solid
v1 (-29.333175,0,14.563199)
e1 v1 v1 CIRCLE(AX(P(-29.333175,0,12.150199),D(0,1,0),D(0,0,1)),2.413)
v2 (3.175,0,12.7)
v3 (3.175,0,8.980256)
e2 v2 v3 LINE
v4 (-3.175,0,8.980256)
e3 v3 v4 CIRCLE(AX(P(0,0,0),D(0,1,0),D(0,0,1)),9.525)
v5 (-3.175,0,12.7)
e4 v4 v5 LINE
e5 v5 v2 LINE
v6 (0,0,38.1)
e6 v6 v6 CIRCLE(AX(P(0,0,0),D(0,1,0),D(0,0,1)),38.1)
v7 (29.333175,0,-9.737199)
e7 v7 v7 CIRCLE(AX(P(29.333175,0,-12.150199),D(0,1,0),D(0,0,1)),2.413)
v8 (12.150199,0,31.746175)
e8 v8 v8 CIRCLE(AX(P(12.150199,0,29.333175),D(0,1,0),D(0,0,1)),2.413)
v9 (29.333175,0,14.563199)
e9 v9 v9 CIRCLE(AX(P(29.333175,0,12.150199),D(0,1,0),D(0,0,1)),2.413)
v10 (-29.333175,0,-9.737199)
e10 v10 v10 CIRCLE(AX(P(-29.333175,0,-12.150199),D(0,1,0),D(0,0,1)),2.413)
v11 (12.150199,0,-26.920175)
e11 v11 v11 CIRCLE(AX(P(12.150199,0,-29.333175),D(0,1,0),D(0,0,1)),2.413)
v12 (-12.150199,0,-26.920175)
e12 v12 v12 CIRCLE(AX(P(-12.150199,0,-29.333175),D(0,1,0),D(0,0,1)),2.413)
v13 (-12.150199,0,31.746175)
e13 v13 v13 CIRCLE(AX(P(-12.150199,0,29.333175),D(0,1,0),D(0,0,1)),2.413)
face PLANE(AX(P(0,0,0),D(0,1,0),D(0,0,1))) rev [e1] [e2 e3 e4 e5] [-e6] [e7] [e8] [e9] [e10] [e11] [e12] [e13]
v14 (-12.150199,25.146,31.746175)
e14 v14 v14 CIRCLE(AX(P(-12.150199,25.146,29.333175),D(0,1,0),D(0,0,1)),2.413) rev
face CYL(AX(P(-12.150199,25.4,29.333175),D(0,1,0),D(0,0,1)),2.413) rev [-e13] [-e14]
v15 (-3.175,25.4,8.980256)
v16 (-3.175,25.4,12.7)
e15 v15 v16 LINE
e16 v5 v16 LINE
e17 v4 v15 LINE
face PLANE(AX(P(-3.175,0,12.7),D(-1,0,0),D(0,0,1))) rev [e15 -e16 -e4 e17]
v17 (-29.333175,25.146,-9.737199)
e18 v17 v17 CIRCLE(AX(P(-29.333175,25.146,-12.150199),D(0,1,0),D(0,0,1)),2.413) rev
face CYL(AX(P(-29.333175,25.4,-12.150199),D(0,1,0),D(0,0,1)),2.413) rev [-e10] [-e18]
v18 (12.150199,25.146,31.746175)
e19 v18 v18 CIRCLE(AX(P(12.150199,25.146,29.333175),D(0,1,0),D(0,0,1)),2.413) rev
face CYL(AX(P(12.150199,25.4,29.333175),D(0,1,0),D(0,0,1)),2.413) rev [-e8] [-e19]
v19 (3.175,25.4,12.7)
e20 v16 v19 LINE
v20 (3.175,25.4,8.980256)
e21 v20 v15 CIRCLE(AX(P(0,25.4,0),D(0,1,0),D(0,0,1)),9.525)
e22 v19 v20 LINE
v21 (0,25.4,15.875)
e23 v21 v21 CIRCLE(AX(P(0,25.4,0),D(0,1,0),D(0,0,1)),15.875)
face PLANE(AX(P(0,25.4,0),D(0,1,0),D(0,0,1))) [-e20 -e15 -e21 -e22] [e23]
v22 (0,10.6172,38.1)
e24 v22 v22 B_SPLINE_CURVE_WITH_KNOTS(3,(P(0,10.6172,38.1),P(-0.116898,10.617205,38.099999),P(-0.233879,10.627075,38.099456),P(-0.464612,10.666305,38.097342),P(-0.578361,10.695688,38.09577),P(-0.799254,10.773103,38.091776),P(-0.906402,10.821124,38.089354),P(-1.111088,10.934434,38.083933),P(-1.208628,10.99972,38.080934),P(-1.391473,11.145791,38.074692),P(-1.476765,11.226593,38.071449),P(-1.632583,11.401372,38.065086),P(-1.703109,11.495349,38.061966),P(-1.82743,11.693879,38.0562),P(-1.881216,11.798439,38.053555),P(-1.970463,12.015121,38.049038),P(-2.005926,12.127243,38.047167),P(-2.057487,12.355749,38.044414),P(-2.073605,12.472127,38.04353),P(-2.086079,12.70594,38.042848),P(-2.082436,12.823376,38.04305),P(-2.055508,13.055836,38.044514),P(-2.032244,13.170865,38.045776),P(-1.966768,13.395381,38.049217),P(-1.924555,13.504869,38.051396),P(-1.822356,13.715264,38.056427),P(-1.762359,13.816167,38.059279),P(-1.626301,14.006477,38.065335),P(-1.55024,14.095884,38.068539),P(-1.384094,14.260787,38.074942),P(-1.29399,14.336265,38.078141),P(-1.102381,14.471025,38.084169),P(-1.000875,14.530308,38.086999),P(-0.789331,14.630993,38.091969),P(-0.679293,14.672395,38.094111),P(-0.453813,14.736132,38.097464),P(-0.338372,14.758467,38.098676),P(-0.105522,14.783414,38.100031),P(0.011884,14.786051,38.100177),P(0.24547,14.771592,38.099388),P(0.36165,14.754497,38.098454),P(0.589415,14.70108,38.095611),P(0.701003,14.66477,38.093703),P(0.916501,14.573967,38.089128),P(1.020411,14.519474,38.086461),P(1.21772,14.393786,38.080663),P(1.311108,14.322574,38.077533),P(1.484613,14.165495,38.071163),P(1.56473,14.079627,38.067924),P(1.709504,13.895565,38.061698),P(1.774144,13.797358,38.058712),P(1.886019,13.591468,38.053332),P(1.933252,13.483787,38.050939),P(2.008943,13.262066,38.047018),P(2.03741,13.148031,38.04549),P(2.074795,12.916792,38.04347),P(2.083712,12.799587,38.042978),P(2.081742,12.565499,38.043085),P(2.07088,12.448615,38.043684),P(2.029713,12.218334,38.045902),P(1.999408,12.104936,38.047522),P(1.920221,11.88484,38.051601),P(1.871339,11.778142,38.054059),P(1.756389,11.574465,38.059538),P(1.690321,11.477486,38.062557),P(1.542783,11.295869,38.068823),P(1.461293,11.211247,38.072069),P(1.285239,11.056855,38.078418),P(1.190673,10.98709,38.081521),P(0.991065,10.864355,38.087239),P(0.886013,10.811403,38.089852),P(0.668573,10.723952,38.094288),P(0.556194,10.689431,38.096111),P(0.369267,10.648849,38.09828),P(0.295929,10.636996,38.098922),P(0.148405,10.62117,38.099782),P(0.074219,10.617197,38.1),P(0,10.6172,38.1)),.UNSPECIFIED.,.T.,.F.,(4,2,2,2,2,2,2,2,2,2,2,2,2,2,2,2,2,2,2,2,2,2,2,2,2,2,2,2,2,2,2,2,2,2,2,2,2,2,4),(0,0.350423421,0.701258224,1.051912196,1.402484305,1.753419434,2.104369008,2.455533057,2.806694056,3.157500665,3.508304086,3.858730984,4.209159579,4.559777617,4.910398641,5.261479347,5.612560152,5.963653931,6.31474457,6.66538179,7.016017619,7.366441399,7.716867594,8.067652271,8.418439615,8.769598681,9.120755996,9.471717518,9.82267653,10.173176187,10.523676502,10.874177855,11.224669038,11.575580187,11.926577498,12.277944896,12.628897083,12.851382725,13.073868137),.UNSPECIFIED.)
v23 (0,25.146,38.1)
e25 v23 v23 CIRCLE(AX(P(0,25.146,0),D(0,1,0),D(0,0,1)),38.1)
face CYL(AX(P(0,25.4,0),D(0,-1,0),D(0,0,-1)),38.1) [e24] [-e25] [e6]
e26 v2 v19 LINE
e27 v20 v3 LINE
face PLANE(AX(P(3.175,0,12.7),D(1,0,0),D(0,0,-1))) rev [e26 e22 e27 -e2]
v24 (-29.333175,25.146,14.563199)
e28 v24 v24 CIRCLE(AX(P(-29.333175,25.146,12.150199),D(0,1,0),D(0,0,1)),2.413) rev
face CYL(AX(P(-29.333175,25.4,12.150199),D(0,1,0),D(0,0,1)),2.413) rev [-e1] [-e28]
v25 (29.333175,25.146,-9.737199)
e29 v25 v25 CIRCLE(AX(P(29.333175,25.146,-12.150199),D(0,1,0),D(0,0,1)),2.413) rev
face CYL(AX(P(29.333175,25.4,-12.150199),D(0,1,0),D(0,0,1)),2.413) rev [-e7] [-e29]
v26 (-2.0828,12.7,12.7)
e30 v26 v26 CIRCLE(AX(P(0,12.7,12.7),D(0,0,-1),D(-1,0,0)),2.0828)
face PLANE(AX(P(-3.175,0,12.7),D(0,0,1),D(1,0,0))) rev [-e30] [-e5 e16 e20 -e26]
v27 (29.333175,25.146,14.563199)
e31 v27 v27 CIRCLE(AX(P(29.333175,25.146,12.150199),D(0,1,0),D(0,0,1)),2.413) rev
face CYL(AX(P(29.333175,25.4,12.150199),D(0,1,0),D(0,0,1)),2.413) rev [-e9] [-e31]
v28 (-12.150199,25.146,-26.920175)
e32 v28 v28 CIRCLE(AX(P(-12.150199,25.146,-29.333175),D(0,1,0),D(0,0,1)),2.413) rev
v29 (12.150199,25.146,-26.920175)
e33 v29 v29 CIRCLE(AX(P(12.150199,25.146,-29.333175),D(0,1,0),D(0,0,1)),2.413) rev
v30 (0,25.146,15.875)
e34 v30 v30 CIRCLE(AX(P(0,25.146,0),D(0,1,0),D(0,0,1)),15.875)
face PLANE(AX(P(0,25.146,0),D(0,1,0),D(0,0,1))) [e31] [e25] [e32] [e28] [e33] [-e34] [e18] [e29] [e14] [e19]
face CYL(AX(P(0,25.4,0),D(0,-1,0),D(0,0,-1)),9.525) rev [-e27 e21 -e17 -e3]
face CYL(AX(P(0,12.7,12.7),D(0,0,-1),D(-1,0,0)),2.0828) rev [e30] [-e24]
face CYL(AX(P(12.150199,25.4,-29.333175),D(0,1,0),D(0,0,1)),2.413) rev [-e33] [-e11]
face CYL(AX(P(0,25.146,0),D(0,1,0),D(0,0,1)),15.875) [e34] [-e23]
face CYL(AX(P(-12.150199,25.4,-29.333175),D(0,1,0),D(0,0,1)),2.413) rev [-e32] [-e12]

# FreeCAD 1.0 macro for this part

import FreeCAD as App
import Part
import Sketcher
Q = App.Units.Quantity


def add_polygon(sketch, points):
    """Adds a closed chain of lines whose ends are joined by coincident constraints."""
    first, n = sketch.GeometryCount, len(points)
    for a, b in zip(points, points[1:] + points[:1]):
        sketch.addGeometry(Part.LineSegment(App.Vector(*a, 0), App.Vector(*b, 0)), False)
    for i in range(n):
        sketch.addConstraint(Sketcher.Constraint("Coincident", first + i, 2, first + (i + 1) % n, 1))

doc = App.newDocument("Part")
body = doc.addObject("PartDesign::Body", "Body")

sketch1 = body.newObject("Sketcher::SketchObject", "Sketch")
sketch1.AttachmentSupport = (doc.getObject("XZ_Plane"), [""])
sketch1.MapMode = "FlatFace"
sketch1.addGeometry([
    Part.Circle(App.Vector(0, 0, 0), App.Vector(0, 0, 1), 38),
    Part.Circle(App.Vector(0, 0, 0), App.Vector(0, 0, 1), 10),
], False)
sketch1.addConstraint([
    Sketcher.Constraint("Coincident", 0, 3, -1, 1),
    Sketcher.Constraint("Coincident", 1, 3, -1, 1),
    Sketcher.Constraint("Diameter", 0, Q("3 in")),
    Sketcher.Constraint("Diameter", 1, Q("0.75 in")),
])
pad1 = body.newObject("PartDesign::Pad", "Pad")
pad1.Profile = sketch1
pad1.Length = Q("1 in")
pad1.Reversed = True

sketch2 = body.newObject("Sketcher::SketchObject", "Sketch001")
sketch2.AttachmentSupport = (doc.getObject("XZ_Plane"), [""])
sketch2.MapMode = "FlatFace"
sketch2.AttachmentOffset = App.Placement(App.Vector(0, 0, -1 * 25.4), App.Rotation())
sketch2.addGeometry(Part.Circle(App.Vector(-29.3, -12.2, 0), App.Vector(0, 0, 1), 2.4), False)
sketch2.addConstraint([
    Sketcher.Constraint("Diameter", 0, Q("0.19 in")),
    Sketcher.Constraint("DistanceY", 0, 3, -1, 1, Q("12.150199 mm")),
    Sketcher.Constraint("DistanceX", 0, 3, -1, 1, Q("29.333175 mm")),
])
doc.recompute()
hole = body.newObject("PartDesign::Hole", "Hole")
hole.Profile = sketch2
hole.ThreadType = "None"
hole.Diameter = Q("0.19 in")
hole.DepthType = "ThroughAll"
hole.Reversed = True
doc.recompute()

polarpattern = body.newObject("PartDesign::PolarPattern", "PolarPattern")
polarpattern.Originals = [hole]
polarpattern.Axis = (doc.getObject("Y_Axis"), [""])
polarpattern.Angle = 360
polarpattern.Occurrences = 8
body.Tip = polarpattern

sketch3 = body.newObject("Sketcher::SketchObject", "Sketch002")
sketch3.AttachmentSupport = (doc.getObject("XZ_Plane"), [""])
sketch3.MapMode = "FlatFace"
sketch3.AttachmentOffset = App.Placement(App.Vector(0, 0, -1 * 25.4), App.Rotation())
add_polygon(sketch3, [(-3, 6), (-3, 13), (3, 13), (3, 6)])
sketch3.addConstraint([
    Sketcher.Constraint("Vertical", 0),
    Sketcher.Constraint("Horizontal", 1),
    Sketcher.Constraint("Vertical", 2),
    Sketcher.Constraint("Horizontal", 3),
    Sketcher.Constraint("Equal", 3, 0),
    Sketcher.Constraint("DistanceX", 1, 1, 1, 2, Q("0.25 in")),
    Sketcher.Constraint("DistanceY", -1, 1, 0, 2, Q("0.5 in")),
    Sketcher.Constraint("DistanceX", 0, 2, -1, 1, Q("0.125 in")),
])
pocket1 = body.newObject("PartDesign::Pocket", "Pocket")
pocket1.Profile = sketch3
pocket1.Type = "ThroughAll"
pocket1.Reversed = True

sketch4 = body.newObject("Sketcher::SketchObject", "Sketch003")
sketch4.AttachmentSupport = (doc.getObject("YZ_Plane"), [""])
sketch4.MapMode = "FlatFace"
add_polygon(sketch4, [(12.7, 38.1), (12.7, 12.7), (14.8, 12.7), (14.8, 38.1)])
sketch4.addGeometry(Part.LineSegment(App.Vector(12.7, 12.7, 0), App.Vector(12.7, 38.1, 0)), True)
sketch4.addConstraint([
    Sketcher.Constraint("Vertical", 0),
    Sketcher.Constraint("Horizontal", 1),
    Sketcher.Constraint("Vertical", 2),
    Sketcher.Constraint("Horizontal", 3),
    Sketcher.Constraint("Vertical", 4),
    Sketcher.Constraint("Coincident", 4, 1, 0, 2),
    Sketcher.Constraint("Horizontal", 2, 2, 4, 2),
    Sketcher.Constraint("DistanceY", 0, 2, 0, 1, Q("1 in")),
    Sketcher.Constraint("DistanceX", -1, 1, 0, 2, Q("0.5 in")),
    Sketcher.Constraint("DistanceY", -1, 1, 0, 2, Q("0.5 in")),
    Sketcher.Constraint("DistanceX", 1, 1, 1, 2, Q("0.082 in")),
])
groove = body.newObject("PartDesign::Groove", "Groove")
groove.Profile = sketch4
groove.ReferenceAxis = (sketch4, ["Axis0"])
groove.Angle = 360

sketch5 = body.newObject("Sketcher::SketchObject", "Sketch004")
sketch5.AttachmentSupport = (doc.getObject("XZ_Plane"), [""])
sketch5.MapMode = "FlatFace"
sketch5.AttachmentOffset = App.Placement(App.Vector(0, 0, -1 * 25.4), App.Rotation())
add_polygon(sketch5, [(-50, -50), (-50, 50), (50, 50), (50, -50)])
sketch5.addGeometry(Part.Circle(App.Vector(0, 0, 0), App.Vector(0, 0, 1), 16), False)
sketch5.addConstraint([
    Sketcher.Constraint("Vertical", 0),
    Sketcher.Constraint("Horizontal", 1),
    Sketcher.Constraint("Vertical", 2),
    Sketcher.Constraint("Horizontal", 3),
    Sketcher.Constraint("Coincident", 4, 3, -1, 1),
    Sketcher.Constraint("Symmetric", 0, 2, 2, 2, -1, 1),
    Sketcher.Constraint("Equal", 3, 0),
    Sketcher.Constraint("Diameter", 4, Q("1.25 in")),
    Sketcher.Constraint("DistanceX", 1, 1, 1, 2, Q("100.344 mm")),
])
pocket2 = body.newObject("PartDesign::Pocket", "Pocket001")
pocket2.Profile = sketch5
pocket2.Length = Q("0.01 in")
pocket2.Reversed = True

doc.recompute()
